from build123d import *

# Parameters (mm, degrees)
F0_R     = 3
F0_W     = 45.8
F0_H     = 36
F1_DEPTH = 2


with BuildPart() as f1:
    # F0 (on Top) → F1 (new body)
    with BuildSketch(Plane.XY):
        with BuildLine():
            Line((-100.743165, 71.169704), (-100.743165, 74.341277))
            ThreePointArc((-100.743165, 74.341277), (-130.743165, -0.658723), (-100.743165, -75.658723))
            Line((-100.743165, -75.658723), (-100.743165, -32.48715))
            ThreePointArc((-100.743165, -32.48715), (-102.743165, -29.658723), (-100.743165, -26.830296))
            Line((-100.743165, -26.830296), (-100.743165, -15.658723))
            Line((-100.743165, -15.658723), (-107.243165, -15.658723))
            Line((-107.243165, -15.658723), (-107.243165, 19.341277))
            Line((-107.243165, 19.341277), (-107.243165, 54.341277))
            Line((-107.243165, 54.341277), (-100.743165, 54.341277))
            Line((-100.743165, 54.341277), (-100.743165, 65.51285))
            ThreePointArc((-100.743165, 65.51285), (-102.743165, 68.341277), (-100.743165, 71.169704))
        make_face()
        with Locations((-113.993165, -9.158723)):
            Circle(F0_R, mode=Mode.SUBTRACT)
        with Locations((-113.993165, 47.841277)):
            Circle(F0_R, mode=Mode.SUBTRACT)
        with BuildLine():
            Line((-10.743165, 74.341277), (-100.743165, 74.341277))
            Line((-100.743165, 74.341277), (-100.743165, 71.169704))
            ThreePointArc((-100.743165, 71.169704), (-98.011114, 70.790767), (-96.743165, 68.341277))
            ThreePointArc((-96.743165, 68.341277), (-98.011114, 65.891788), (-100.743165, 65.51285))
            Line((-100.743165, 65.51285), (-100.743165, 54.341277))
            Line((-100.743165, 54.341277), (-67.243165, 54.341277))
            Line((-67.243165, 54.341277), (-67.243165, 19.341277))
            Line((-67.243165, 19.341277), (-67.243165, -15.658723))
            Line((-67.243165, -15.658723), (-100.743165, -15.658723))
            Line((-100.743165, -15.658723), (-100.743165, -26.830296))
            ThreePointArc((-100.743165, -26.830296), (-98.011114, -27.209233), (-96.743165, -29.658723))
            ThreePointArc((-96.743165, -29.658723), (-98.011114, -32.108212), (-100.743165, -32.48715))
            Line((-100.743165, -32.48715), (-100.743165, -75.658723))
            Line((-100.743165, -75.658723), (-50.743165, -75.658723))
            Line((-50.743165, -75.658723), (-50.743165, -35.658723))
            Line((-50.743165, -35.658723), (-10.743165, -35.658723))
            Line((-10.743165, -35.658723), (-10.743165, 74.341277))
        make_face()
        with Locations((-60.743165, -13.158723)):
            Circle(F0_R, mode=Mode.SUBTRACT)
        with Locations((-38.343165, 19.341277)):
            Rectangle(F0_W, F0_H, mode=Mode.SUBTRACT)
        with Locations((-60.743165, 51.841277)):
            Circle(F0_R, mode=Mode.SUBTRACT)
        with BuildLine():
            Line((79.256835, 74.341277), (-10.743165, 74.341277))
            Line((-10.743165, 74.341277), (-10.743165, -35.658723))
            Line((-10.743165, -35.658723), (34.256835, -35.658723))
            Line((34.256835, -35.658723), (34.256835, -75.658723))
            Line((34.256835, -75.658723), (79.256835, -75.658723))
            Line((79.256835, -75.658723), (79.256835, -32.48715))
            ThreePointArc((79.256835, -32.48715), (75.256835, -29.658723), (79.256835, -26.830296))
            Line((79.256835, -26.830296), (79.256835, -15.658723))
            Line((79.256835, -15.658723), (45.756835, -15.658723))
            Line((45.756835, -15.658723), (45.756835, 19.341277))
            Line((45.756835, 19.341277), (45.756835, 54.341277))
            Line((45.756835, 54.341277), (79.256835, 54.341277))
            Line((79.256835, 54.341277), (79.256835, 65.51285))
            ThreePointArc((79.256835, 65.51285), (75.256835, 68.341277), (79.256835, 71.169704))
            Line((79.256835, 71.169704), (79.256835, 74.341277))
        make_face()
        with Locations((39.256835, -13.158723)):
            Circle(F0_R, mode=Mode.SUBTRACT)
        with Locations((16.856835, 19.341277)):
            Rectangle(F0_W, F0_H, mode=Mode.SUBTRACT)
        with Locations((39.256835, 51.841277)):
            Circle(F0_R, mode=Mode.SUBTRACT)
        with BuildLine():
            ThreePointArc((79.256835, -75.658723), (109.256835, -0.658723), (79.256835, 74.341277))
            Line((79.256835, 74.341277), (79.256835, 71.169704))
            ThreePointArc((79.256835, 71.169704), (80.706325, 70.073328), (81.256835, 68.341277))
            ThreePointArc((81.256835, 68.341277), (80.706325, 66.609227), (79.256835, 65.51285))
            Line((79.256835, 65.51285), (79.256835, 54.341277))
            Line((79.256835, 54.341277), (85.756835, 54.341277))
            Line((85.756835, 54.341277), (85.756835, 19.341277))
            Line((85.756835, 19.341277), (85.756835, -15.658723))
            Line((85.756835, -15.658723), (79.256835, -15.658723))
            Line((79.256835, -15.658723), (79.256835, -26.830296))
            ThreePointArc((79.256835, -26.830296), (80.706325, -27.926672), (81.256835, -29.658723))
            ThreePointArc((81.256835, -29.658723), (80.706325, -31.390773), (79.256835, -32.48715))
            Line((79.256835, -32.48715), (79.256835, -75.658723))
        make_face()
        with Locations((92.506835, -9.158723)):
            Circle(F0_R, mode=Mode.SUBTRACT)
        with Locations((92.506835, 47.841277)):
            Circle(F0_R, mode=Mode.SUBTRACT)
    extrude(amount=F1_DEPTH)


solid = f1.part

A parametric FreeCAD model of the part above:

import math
import FreeCAD as App
import Part
import Sketcher
from FreeCAD import Vector
Q = App.Units.Quantity


def add_polygon(sketch, points):
    """Adds a closed chain of lines whose ends are joined by coincident constraints."""
    first, n = sketch.GeometryCount, len(points)
    for a, b in zip(points, points[1:] + points[:1]):
        sketch.addGeometry(Part.LineSegment(App.Vector(*a, 0), App.Vector(*b, 0)), False)
    for i in range(n):
        sketch.addConstraint(Sketcher.Constraint("Coincident", first + i, 2, first + (i + 1) % n, 1))

doc = App.newDocument("Part")
body = doc.addObject("PartDesign::Body", "Body")

# Sketch on XY plane
sketch1 = body.newObject("Sketcher::SketchObject", "Sketch")
sketch1.AttachmentSupport = (doc.getObject("XY_Plane"), [""])
sketch1.MapMode = "FlatFace"
sketch1.addGeometry(Part.ArcOfCircle(Part.Circle(Vector(-22, -0.7, 0), Vector(0, 0, 1), 108.8), math.radians(136), math.radians(224)), False)  # 0
sketch1.addGeometry(Part.LineSegment(Vector(-100.7, -75.7, 0), Vector(-50.7, -75.7, 0)), False)  # 1
sketch1.addGeometry(Part.LineSegment(Vector(-50.7, -75.7, 0), Vector(-50.7, -35.7, 0)), False)  # 2
sketch1.addGeometry(Part.LineSegment(Vector(-50.7, -35.7, 0), Vector(34.3, -35.7, 0)), False)  # 3
sketch1.addGeometry(Part.LineSegment(Vector(34.3, -35.7, 0), Vector(34.3, -75.7, 0)), False)  # 4
sketch1.addGeometry(Part.LineSegment(Vector(34.3, -75.7, 0), Vector(79.3, -75.7, 0)), False)  # 5
sketch1.addGeometry(Part.ArcOfCircle(Part.Circle(Vector(0.5, -0.7, 0), Vector(0, 0, 1), 108.8), math.radians(-44), math.radians(44)), False)  # 6
sketch1.addGeometry(Part.LineSegment(Vector(79.3, 74.3, 0), Vector(-100.7, 74.3, 0)), False)  # 7
sketch1.addGeometry(Part.ArcOfCircle(Part.Circle(Vector(-99.7, -29.7, 0), Vector(0, 0, 1), 3), math.radians(109), math.radians(251)), False)  # 8
sketch1.addGeometry(Part.ArcOfCircle(Part.Circle(Vector(-99.7, -29.7, 0), Vector(0, 0, 1), 3), math.radians(0), math.radians(109)), False)  # 9
sketch1.addGeometry(Part.ArcOfCircle(Part.Circle(Vector(-99.7, -29.7, 0), Vector(0, 0, 1), 3), math.radians(-109), math.radians(0)), False)  # 10
sketch1.addGeometry(Part.Circle(Vector(-114, -9.2, 0), Vector(0, 0, 1), 3), False)  # 11
sketch1.addGeometry(Part.Circle(Vector(-60.7, -13.2, 0), Vector(0, 0, 1), 3), False)  # 12
add_polygon(sketch1, [(-107.2, 54.3), (-67.2, 54.3), (-67.2, -15.7), (-107.2, -15.7)])  # lines 13-16
add_polygon(sketch1, [(-15.4, 1.3), (-61.2, 1.3), (-61.2, 37.3), (-15.4, 37.3)])  # lines 17-20
sketch1.addGeometry(Part.Circle(Vector(39.3, -13.2, 0), Vector(0, 0, 1), 3), False)  # 21
sketch1.addGeometry(Part.ArcOfCircle(Part.Circle(Vector(78.3, -29.7, 0), Vector(0, 0, 1), 3), math.radians(71), math.radians(289)), False)  # 22
sketch1.addGeometry(Part.ArcOfCircle(Part.Circle(Vector(78.3, -29.7, 0), Vector(0, 0, 1), 3), math.radians(0), math.radians(71)), False)  # 23
sketch1.addGeometry(Part.ArcOfCircle(Part.Circle(Vector(78.3, -29.7, 0), Vector(0, 0, 1), 3), math.radians(-71), math.radians(0)), False)  # 24
sketch1.addGeometry(Part.Circle(Vector(92.5, -9.2, 0), Vector(0, 0, 1), 3), False)  # 25
add_polygon(sketch1, [(39.8, 1.3), (-6, 1.3), (-6, 37.3), (39.8, 37.3)])  # lines 26-29
add_polygon(sketch1, [(45.8, 54.3), (85.8, 54.3), (85.8, -15.7), (45.8, -15.7)])  # lines 30-33
sketch1.addGeometry(Part.Circle(Vector(-114, 47.8, 0), Vector(0, 0, 1), 3), False)  # 34
sketch1.addGeometry(Part.ArcOfCircle(Part.Circle(Vector(-99.7, 68.3, 0), Vector(0, 0, 1), 3), math.radians(109), math.radians(251)), False)  # 35
sketch1.addGeometry(Part.ArcOfCircle(Part.Circle(Vector(-99.7, 68.3, 0), Vector(0, 0, 1), 3), math.radians(0), math.radians(109)), False)  # 36
sketch1.addGeometry(Part.ArcOfCircle(Part.Circle(Vector(-99.7, 68.3, 0), Vector(0, 0, 1), 3), math.radians(-109), math.radians(0)), False)  # 37
sketch1.addGeometry(Part.Circle(Vector(-60.7, 51.8, 0), Vector(0, 0, 1), 3), False)  # 38
sketch1.addGeometry(Part.Circle(Vector(39.3, 51.8, 0), Vector(0, 0, 1), 3), False)  # 39
sketch1.addGeometry(Part.Circle(Vector(92.5, 47.8, 0), Vector(0, 0, 1), 3), False)  # 40
sketch1.addGeometry(Part.ArcOfCircle(Part.Circle(Vector(78.3, 68.3, 0), Vector(0, 0, 1), 3), math.radians(71), math.radians(289)), False)  # 41
sketch1.addGeometry(Part.ArcOfCircle(Part.Circle(Vector(78.3, 68.3, 0), Vector(0, 0, 1), 3), math.radians(0), math.radians(71)), False)  # 42
sketch1.addGeometry(Part.ArcOfCircle(Part.Circle(Vector(78.3, 68.3, 0), Vector(0, 0, 1), 3), math.radians(-71), math.radians(0)), False)  # 43
sketch1.addConstraint(Sketcher.Constraint("Coincident", 0, 2, 1, 1))
sketch1.addConstraint(Sketcher.Constraint("Coincident", 1, 2, 2, 1))
sketch1.addConstraint(Sketcher.Constraint("Coincident", 2, 2, 3, 1))
sketch1.addConstraint(Sketcher.Constraint("Coincident", 3, 2, 4, 1))
sketch1.addConstraint(Sketcher.Constraint("Coincident", 4, 2, 5, 1))
sketch1.addConstraint(Sketcher.Constraint("Coincident", 5, 2, 6, 1))
sketch1.addConstraint(Sketcher.Constraint("Coincident", 6, 2, 7, 1))
sketch1.addConstraint(Sketcher.Constraint("Coincident", 7, 2, 0, 1))
sketch1.addConstraint(Sketcher.Constraint("Tangent", 8, 1, 9, 2))
sketch1.addConstraint(Sketcher.Constraint("Tangent", 9, 1, 10, 2))
sketch1.addConstraint(Sketcher.Constraint("Tangent", 10, 1, 8, 2))
sketch1.addConstraint(Sketcher.Constraint("Tangent", 22, 1, 23, 2))
sketch1.addConstraint(Sketcher.Constraint("Tangent", 23, 1, 24, 2))
sketch1.addConstraint(Sketcher.Constraint("Tangent", 24, 1, 22, 2))
sketch1.addConstraint(Sketcher.Constraint("Tangent", 35, 1, 36, 2))
sketch1.addConstraint(Sketcher.Constraint("Tangent", 36, 1, 37, 2))
sketch1.addConstraint(Sketcher.Constraint("Tangent", 37, 1, 35, 2))
sketch1.addConstraint(Sketcher.Constraint("Tangent", 41, 1, 42, 2))
sketch1.addConstraint(Sketcher.Constraint("Tangent", 42, 1, 43, 2))
sketch1.addConstraint(Sketcher.Constraint("Tangent", 43, 1, 41, 2))
sketch1.addConstraint(Sketcher.Constraint("Horizontal", 1))
sketch1.addConstraint(Sketcher.Constraint("Vertical", 2))
sketch1.addConstraint(Sketcher.Constraint("Horizontal", 3))
sketch1.addConstraint(Sketcher.Constraint("Vertical", 4))
sketch1.addConstraint(Sketcher.Constraint("Horizontal", 5))
sketch1.addConstraint(Sketcher.Constraint("Horizontal", 7))
sketch1.addConstraint(Sketcher.Constraint("Horizontal", 13))
sketch1.addConstraint(Sketcher.Constraint("Vertical", 14))
sketch1.addConstraint(Sketcher.Constraint("Horizontal", 15))
sketch1.addConstraint(Sketcher.Constraint("Vertical", 16))
sketch1.addConstraint(Sketcher.Constraint("Horizontal", 17))
sketch1.addConstraint(Sketcher.Constraint("Vertical", 18))
sketch1.addConstraint(Sketcher.Constraint("Horizontal", 19))
sketch1.addConstraint(Sketcher.Constraint("Vertical", 20))
sketch1.addConstraint(Sketcher.Constraint("Horizontal", 26))
sketch1.addConstraint(Sketcher.Constraint("Vertical", 27))
sketch1.addConstraint(Sketcher.Constraint("Horizontal", 28))
sketch1.addConstraint(Sketcher.Constraint("Vertical", 29))
sketch1.addConstraint(Sketcher.Constraint("Horizontal", 30))
sketch1.addConstraint(Sketcher.Constraint("Vertical", 31))
sketch1.addConstraint(Sketcher.Constraint("Horizontal", 32))
sketch1.addConstraint(Sketcher.Constraint("Vertical", 33))
sketch1.addConstraint(Sketcher.Constraint("Equal", 0, 6))
sketch1.addConstraint(Sketcher.Constraint("Equal", 10, 11))
sketch1.addConstraint(Sketcher.Constraint("Equal", 11, 12))
sketch1.addConstraint(Sketcher.Constraint("Equal", 12, 21))
sketch1.addConstraint(Sketcher.Constraint("Equal", 21, 22))
sketch1.addConstraint(Sketcher.Constraint("Equal", 24, 25))
sketch1.addConstraint(Sketcher.Constraint("Equal", 25, 34))
sketch1.addConstraint(Sketcher.Constraint("Equal", 34, 35))
sketch1.addConstraint(Sketcher.Constraint("Equal", 37, 38))
sketch1.addConstraint(Sketcher.Constraint("Equal", 38, 39))
sketch1.addConstraint(Sketcher.Constraint("Equal", 39, 40))
sketch1.addConstraint(Sketcher.Constraint("Equal", 40, 41))
sketch1.addConstraint(Sketcher.Constraint("Horizontal", 0, 3, 6, 3))
sketch1.addConstraint(Sketcher.Constraint("Horizontal", 12, 3, 21, 3))
sketch1.addConstraint(Sketcher.Constraint("Horizontal", 10, 3, 22, 3))
sketch1.addConstraint(Sketcher.Constraint("Horizontal", 11, 3, 25, 3))
sketch1.addConstraint(Sketcher.Constraint("Horizontal", 38, 3, 39, 3))
sketch1.addConstraint(Sketcher.Constraint("Horizontal", 34, 3, 40, 3))
sketch1.addConstraint(Sketcher.Constraint("Horizontal", 37, 3, 41, 3))
sketch1.addConstraint(Sketcher.Constraint("Horizontal", 1, 2, 4, 2))
sketch1.addConstraint(Sketcher.Constraint("Horizontal", 24, 3, 9, 1))
sketch1.addConstraint(Sketcher.Constraint("Horizontal", 8, 1, 22, 1))
sketch1.addConstraint(Sketcher.Constraint("Horizontal", 9, 1, 23, 1))
sketch1.addConstraint(Sketcher.Constraint("Horizontal", 10, 1, 24, 1))
sketch1.addConstraint(Sketcher.Constraint("Horizontal", 20, 2, 26, 2))
sketch1.addConstraint(Sketcher.Constraint("Horizontal", 19, 2, 27, 2))
sketch1.addConstraint(Sketcher.Constraint("Horizontal", 16, 2, 30, 2))
sketch1.addConstraint(Sketcher.Constraint("Horizontal", 15, 2, 31, 2))
sketch1.addConstraint(Sketcher.Constraint("Horizontal", 43, 3, 36, 1))
sketch1.addConstraint(Sketcher.Constraint("Horizontal", 35, 1, 41, 1))
sketch1.addConstraint(Sketcher.Constraint("Horizontal", 36, 1, 42, 1))
sketch1.addConstraint(Sketcher.Constraint("Horizontal", 37, 1, 43, 1))
sketch1.addConstraint(Sketcher.Constraint("Vertical", 11, 3, 34, 3))
sketch1.addConstraint(Sketcher.Constraint("Vertical", 10, 3, 35, 3))
sketch1.addConstraint(Sketcher.Constraint("Vertical", 12, 3, 38, 3))
sketch1.addConstraint(Sketcher.Constraint("Vertical", 21, 3, 39, 3))
sketch1.addConstraint(Sketcher.Constraint("Vertical", 25, 3, 40, 3))
sketch1.addConstraint(Sketcher.Constraint("Vertical", 24, 3, 41, 3))
sketch1.addConstraint(Sketcher.Constraint("Vertical", 5, 2, 6, 2))
sketch1.addConstraint(Sketcher.Constraint("Vertical", 7, 2, 8, 1))
sketch1.addConstraint(Sketcher.Constraint("Vertical", 8, 1, 10, 1))
sketch1.addConstraint(Sketcher.Constraint("Vertical", 6, 2, 22, 1))
sketch1.addConstraint(Sketcher.Constraint("Vertical", 10, 1, 35, 1))
sketch1.addConstraint(Sketcher.Constraint("Vertical", 35, 1, 37, 1))
sketch1.addConstraint(Sketcher.Constraint("Equal", 19, 26))
sketch1.addConstraint(Sketcher.Constraint("Equal", 15, 30))
sketch1.addConstraint(Sketcher.Constraint("Equal", 32, 2))
sketch1.addConstraint(Sketcher.Constraint("Diameter", 11, Q("6 mm")))
sketch1.addConstraint(Sketcher.Constraint("DistanceX", 1, 1, 1, 2, Q("50 mm")))
sketch1.addConstraint(Sketcher.Constraint("DistanceX", 3, 1, 3, 2, Q("85 mm")))
sketch1.addConstraint(Sketcher.Constraint("DistanceX", 5, 1, 5, 2, Q("45 mm")))
sketch1.addConstraint(Sketcher.Constraint("DistanceX", 13, 1, 13, 2, Q("40 mm")))
sketch1.addConstraint(Sketcher.Constraint("DistanceY", 14, 2, 14, 1, Q("70 mm")))
sketch1.addConstraint(Sketcher.Constraint("DistanceY", 18, 1, 18, 2, Q("36 mm")))
sketch1.addConstraint(Sketcher.Constraint("Radius", 0, Q("108.75 mm")))
sketch1.addConstraint(Sketcher.Constraint("DistanceX", 17, 2, 17, 1, Q("45.8 mm")))
sketch1.addConstraint(Sketcher.Constraint("DistanceY", 8, 3, 0, 3, Q("29 mm")))
sketch1.addConstraint(Sketcher.Constraint("DistanceX", 11, 3, 0, 3, Q("92 mm")))
sketch1.addConstraint(Sketcher.Constraint("DistanceX", 9, 3, 12, 3, Q("38.999999 mm")))
sketch1.addConstraint(Sketcher.Constraint("DistanceY", 12, 3, 11, 3, Q("4 mm")))
sketch1.addConstraint(Sketcher.Constraint("DistanceX", 12, 3, 21, 3, Q("100 mm")))
sketch1.addConstraint(Sketcher.Constraint("DistanceX", 21, 3, 22, 3, Q("39 mm")))
sketch1.addConstraint(Sketcher.Constraint("DistanceX", 6, 3, 25, 3, Q("92 mm")))
sketch1.addConstraint(Sketcher.Constraint("DistanceY", 11, 3, 34, 3, Q("57 mm")))
sketch1.addConstraint(Sketcher.Constraint("DistanceY", 10, 3, 35, 3, Q("97.999999 mm")))
sketch1.addConstraint(Sketcher.Constraint("DistanceY", 34, 3, 38, 3, Q("4 mm")))
sketch1.addConstraint(Sketcher.Constraint("DistanceY", 0, 2, 8, 3, Q("46 mm")))
sketch1.addConstraint(Sketcher.Constraint("DistanceY", 13, 2, 36, 3, Q("14.000001 mm")))
sketch1.addConstraint(Sketcher.Constraint("DistanceX", 14, 2, 17, 2, Q("6 mm")))
sketch1.addConstraint(Sketcher.Constraint("DistanceY", 14, 2, 17, 2, Q("17 mm")))
sketch1.addConstraint(Sketcher.Constraint("DistanceX", 29, 2, 32, 2, Q("6 mm")))
sketch1.addConstraint(Sketcher.Constraint("DistanceY", 10, 3, 11, 3, Q("20.499999 mm")))
sketch1.addConstraint(Sketcher.Constraint("DistanceX", 13, 2, 38, 3, Q("6.5 mm")))
sketch1.addConstraint(Sketcher.Constraint("DistanceX", 20, 2, 26, 2, Q("9.4 mm")))
sketch1.addConstraint(Sketcher.Constraint("DistanceY", 23, 3, -1, 1, Q("29.658722 mm")))
sketch1.addConstraint(Sketcher.Constraint("DistanceX", 0, 3, -1, 1, Q("21.993165 mm")))
pad1 = body.newObject("PartDesign::Pad", "Pad")
pad1.Profile = sketch1
pad1.Length = 2

doc.recompute()
